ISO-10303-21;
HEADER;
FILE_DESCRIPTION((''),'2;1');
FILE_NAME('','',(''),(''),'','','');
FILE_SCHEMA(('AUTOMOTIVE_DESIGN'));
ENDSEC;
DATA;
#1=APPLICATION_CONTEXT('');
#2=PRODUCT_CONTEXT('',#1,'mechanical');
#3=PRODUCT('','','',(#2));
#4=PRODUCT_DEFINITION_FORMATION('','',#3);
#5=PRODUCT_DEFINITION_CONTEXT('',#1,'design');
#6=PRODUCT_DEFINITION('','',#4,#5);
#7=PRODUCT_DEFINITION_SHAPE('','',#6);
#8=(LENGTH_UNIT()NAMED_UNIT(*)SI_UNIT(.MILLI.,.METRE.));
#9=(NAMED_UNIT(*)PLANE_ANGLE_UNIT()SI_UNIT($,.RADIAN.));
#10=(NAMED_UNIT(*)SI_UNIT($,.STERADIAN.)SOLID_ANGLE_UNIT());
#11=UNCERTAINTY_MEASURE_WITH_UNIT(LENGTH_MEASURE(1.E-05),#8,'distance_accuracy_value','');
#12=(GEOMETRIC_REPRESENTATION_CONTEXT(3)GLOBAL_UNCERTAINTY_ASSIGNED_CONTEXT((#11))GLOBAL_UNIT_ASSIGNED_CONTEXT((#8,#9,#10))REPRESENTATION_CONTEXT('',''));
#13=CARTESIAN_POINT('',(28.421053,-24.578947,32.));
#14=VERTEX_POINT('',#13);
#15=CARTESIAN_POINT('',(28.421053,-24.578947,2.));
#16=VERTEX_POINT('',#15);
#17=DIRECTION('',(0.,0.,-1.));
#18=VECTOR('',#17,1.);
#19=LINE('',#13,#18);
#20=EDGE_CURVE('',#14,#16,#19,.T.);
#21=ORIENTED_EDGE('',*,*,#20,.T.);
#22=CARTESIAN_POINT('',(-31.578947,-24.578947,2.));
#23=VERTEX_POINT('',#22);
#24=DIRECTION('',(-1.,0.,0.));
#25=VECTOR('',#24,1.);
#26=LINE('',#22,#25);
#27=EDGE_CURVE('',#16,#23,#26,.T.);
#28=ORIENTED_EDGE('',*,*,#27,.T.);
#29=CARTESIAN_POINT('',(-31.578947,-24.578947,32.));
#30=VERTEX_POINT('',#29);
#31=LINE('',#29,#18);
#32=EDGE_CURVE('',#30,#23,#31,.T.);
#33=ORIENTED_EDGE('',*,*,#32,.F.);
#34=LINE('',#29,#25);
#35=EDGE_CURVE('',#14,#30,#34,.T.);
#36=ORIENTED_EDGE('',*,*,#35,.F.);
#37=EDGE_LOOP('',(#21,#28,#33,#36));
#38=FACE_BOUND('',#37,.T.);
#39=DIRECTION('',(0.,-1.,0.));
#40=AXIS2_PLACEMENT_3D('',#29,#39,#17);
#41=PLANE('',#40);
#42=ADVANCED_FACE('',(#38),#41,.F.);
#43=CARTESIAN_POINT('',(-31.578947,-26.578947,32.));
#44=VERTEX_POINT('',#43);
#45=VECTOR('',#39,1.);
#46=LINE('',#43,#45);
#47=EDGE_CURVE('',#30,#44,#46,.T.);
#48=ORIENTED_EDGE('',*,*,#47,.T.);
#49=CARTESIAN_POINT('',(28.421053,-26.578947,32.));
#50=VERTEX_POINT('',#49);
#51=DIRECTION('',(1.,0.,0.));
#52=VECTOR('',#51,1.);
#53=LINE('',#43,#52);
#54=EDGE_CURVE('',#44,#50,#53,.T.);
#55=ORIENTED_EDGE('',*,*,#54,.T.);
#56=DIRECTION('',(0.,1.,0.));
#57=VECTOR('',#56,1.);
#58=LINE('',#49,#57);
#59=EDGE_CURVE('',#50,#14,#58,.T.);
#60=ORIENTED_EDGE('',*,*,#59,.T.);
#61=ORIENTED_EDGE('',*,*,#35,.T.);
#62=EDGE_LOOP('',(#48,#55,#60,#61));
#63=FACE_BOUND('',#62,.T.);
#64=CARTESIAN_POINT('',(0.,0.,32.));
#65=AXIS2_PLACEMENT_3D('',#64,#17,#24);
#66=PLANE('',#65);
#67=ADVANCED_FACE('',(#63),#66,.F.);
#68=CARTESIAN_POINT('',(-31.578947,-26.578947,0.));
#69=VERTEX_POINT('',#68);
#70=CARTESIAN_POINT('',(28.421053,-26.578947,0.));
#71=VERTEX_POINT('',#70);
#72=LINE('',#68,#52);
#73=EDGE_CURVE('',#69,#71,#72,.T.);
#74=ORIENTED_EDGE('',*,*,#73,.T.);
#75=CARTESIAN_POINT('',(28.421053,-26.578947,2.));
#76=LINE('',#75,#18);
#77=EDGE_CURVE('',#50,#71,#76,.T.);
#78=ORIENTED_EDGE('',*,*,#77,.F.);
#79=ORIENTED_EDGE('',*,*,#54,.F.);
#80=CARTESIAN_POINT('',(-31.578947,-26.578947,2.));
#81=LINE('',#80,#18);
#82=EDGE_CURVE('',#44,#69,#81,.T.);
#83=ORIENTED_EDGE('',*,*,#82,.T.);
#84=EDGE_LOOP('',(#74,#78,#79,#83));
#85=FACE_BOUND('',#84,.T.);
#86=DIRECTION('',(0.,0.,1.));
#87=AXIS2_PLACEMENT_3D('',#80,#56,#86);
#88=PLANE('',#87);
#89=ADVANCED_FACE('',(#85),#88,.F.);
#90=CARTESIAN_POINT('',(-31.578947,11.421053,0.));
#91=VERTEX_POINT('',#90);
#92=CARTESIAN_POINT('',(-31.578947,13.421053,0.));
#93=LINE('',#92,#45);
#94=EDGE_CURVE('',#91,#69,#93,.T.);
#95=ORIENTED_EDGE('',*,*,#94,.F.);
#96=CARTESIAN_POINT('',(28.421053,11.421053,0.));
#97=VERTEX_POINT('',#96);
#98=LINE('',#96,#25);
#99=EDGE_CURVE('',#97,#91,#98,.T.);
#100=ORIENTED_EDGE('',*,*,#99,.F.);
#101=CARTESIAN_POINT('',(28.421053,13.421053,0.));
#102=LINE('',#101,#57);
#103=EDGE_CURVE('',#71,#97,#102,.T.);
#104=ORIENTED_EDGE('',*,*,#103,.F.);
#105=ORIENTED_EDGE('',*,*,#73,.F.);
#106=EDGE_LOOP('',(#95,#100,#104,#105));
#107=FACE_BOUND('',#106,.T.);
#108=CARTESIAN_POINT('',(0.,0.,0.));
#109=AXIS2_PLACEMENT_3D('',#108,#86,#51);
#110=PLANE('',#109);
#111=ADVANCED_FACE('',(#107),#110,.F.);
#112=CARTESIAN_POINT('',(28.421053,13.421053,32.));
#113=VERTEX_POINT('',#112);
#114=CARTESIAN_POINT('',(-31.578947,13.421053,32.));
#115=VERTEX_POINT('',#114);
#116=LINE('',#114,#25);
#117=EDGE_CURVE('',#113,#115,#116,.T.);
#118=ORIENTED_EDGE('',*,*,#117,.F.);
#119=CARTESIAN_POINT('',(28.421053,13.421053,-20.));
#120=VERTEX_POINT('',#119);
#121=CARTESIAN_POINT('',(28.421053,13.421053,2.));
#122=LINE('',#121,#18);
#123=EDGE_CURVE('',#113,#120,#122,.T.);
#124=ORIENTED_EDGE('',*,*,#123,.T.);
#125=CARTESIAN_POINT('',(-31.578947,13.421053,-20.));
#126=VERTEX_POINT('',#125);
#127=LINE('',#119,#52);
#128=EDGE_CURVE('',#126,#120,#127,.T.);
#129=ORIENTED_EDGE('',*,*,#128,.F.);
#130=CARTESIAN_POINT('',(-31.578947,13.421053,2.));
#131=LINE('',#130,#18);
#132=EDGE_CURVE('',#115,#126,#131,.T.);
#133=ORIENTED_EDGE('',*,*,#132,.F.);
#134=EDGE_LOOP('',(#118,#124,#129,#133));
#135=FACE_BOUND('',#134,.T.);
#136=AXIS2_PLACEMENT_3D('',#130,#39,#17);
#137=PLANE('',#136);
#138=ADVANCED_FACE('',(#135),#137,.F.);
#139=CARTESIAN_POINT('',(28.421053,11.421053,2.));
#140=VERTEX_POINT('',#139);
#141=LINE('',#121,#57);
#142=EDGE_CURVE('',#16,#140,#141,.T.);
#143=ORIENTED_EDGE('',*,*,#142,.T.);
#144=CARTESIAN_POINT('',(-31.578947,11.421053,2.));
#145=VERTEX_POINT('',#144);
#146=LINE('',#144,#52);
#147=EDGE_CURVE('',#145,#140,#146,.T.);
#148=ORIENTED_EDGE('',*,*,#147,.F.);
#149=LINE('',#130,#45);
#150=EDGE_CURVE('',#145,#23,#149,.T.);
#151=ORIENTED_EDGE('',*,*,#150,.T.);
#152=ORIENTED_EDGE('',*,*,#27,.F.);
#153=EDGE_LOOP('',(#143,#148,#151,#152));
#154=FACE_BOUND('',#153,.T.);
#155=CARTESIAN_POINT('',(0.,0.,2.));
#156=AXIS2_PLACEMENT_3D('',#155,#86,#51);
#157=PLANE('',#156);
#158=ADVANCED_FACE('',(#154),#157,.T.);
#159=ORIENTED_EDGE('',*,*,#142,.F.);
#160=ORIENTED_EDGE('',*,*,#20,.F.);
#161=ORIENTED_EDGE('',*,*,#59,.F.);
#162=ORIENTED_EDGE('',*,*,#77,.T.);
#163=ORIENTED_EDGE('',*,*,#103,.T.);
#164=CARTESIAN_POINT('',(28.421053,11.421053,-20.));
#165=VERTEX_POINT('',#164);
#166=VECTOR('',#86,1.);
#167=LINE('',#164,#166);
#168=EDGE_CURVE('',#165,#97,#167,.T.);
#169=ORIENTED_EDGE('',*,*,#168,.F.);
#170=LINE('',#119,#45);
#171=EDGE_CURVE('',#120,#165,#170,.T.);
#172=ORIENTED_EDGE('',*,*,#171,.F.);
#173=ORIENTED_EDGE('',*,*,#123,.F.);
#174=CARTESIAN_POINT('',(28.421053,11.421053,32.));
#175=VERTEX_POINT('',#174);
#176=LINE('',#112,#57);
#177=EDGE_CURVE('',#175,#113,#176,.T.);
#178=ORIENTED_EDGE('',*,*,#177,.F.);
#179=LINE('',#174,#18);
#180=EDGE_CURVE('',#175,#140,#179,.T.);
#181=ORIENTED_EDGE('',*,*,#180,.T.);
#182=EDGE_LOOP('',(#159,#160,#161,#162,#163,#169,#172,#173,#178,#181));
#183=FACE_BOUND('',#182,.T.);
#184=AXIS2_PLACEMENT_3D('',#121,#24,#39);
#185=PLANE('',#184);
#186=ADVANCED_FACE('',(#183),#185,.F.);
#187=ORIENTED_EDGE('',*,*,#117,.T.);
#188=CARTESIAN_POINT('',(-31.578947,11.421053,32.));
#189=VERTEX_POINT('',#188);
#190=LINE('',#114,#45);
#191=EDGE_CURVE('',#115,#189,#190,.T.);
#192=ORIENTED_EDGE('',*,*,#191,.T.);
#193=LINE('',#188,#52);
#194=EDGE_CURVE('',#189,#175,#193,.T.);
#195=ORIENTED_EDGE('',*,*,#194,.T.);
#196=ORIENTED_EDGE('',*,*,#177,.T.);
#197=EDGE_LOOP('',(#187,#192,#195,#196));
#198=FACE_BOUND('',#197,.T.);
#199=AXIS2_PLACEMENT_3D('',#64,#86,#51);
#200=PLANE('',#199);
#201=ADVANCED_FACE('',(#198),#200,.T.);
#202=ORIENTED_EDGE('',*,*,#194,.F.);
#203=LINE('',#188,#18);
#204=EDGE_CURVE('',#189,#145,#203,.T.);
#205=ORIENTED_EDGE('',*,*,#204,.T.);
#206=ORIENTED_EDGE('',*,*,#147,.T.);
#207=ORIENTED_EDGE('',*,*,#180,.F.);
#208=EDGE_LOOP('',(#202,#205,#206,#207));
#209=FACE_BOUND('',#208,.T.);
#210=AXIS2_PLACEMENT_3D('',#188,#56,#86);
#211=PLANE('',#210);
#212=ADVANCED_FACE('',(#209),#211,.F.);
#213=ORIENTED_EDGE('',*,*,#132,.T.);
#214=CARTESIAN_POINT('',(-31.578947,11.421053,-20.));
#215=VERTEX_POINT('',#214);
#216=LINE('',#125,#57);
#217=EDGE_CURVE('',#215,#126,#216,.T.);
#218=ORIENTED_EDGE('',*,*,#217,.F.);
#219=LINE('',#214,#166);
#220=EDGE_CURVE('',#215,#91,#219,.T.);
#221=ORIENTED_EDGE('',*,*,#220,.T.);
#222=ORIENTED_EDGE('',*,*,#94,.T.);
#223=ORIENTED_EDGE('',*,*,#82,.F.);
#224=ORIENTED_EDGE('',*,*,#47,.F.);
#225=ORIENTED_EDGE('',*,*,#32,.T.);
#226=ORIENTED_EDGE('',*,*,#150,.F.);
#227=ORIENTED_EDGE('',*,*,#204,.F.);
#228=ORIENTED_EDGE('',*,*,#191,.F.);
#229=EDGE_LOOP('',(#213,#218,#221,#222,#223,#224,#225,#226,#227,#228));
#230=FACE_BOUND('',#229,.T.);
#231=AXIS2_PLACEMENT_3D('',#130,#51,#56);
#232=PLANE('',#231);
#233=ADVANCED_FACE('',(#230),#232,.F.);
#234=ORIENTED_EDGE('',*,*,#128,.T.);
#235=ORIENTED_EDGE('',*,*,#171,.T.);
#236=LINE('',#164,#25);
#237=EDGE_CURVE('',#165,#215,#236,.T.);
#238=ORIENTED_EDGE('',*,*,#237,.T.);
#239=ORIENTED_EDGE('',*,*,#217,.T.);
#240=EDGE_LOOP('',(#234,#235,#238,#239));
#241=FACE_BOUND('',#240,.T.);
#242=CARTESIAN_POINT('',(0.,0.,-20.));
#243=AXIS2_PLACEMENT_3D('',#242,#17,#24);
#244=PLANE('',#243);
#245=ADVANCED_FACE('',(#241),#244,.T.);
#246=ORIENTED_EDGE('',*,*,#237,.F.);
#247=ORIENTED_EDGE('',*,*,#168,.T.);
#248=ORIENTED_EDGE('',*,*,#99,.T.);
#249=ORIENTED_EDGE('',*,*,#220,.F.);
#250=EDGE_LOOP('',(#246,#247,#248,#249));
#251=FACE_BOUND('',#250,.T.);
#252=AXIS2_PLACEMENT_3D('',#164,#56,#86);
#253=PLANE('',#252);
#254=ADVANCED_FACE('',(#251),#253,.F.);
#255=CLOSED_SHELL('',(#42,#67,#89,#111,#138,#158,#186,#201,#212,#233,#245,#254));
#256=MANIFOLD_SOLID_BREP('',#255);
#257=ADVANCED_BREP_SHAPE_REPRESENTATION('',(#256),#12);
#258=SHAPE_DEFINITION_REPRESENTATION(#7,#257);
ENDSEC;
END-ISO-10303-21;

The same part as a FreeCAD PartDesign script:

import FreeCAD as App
import Part
import Sketcher

doc = App.newDocument("Part")
body = doc.addObject("PartDesign::Body", "Body")

sketch1 = body.newObject("Sketcher::SketchObject", "Sketch")
sketch1.AttachmentSupport = (doc.getObject("XY_Plane"), [""])
sketch1.MapMode = "FlatFace"
sketch1.addGeometry(Part.LineSegment(App.Vector(-32, 13, 0), App.Vector(-32, -27, 0)), False)
sketch1.addGeometry(Part.LineSegment(App.Vector(-32, -27, 0), App.Vector(28, -27, 0)), False)
sketch1.addGeometry(Part.LineSegment(App.Vector(28, -27, 0), App.Vector(28, 13, 0)), False)
sketch1.addGeometry(Part.LineSegment(App.Vector(28, 13, 0), App.Vector(-32, 13, 0)), False)
sketch1.addConstraint(Sketcher.Constraint("Coincident", 0, 2, 1, 1))
sketch1.addConstraint(Sketcher.Constraint("Coincident", 1, 2, 2, 1))
sketch1.addConstraint(Sketcher.Constraint("Coincident", 2, 2, 3, 1))
sketch1.addConstraint(Sketcher.Constraint("Coincident", 3, 2, 0, 1))
sketch1.addConstraint(Sketcher.Constraint("Vertical", 0))
sketch1.addConstraint(Sketcher.Constraint("Horizontal", 1))
sketch1.addConstraint(Sketcher.Constraint("Vertical", 2))
sketch1.addConstraint(Sketcher.Constraint("Horizontal", 3))
sketch1.addConstraint(Sketcher.Constraint("DistanceX", 1, 1, 1, 2, 60.0))
sketch1.addConstraint(Sketcher.Constraint("DistanceY", 0, 2, 0, 1, 40.0))
sketch1.addConstraint(Sketcher.Constraint("DistanceX", 0, 2, -1, 1, 31.578947))
sketch1.addConstraint(Sketcher.Constraint("DistanceY", 0, 2, -1, 1, 26.578947))
pad1 = body.newObject("PartDesign::Pad", "Pad")
pad1.Profile = sketch1
pad1.Length = 2

sketch2 = body.newObject("Sketcher::SketchObject", "Sketch001")
sketch2.AttachmentSupport = (doc.getObject("XY_Plane"), [""])
sketch2.MapMode = "FlatFace"
sketch2.AttachmentOffset = App.Placement(App.Vector(0, 0, 2), App.Rotation())
sketch2.addGeometry(Part.LineSegment(App.Vector(-31.6, 13.4, 0), App.Vector(-31.6, 11.4, 0)), False)
sketch2.addGeometry(Part.LineSegment(App.Vector(-31.6, 11.4, 0), App.Vector(28.4, 11.4, 0)), False)
sketch2.addGeometry(Part.LineSegment(App.Vector(28.4, 11.4, 0), App.Vector(28.4, 13.4, 0)), False)
sketch2.addGeometry(Part.LineSegment(App.Vector(28.4, 13.4, 0), App.Vector(-31.6, 13.4, 0)), False)
sketch2.addGeometry(Part.LineSegment(App.Vector(-31.6, -24.6, 0), App.Vector(-31.6, -26.6, 0)), False)
sketch2.addGeometry(Part.LineSegment(App.Vector(-31.6, -26.6, 0), App.Vector(28.4, -26.6, 0)), False)
sketch2.addGeometry(Part.LineSegment(App.Vector(28.4, -26.6, 0), App.Vector(28.4, -24.6, 0)), False)
sketch2.addGeometry(Part.LineSegment(App.Vector(28.4, -24.6, 0), App.Vector(-31.6, -24.6, 0)), False)
sketch2.addConstraint(Sketcher.Constraint("Coincident", 0, 2, 1, 1))
sketch2.addConstraint(Sketcher.Constraint("Coincident", 1, 2, 2, 1))
sketch2.addConstraint(Sketcher.Constraint("Coincident", 2, 2, 3, 1))
sketch2.addConstraint(Sketcher.Constraint("Coincident", 3, 2, 0, 1))
sketch2.addConstraint(Sketcher.Constraint("Coincident", 4, 2, 5, 1))
sketch2.addConstraint(Sketcher.Constraint("Coincident", 5, 2, 6, 1))
sketch2.addConstraint(Sketcher.Constraint("Coincident", 6, 2, 7, 1))
sketch2.addConstraint(Sketcher.Constraint("Coincident", 7, 2, 4, 1))
sketch2.addConstraint(Sketcher.Constraint("Vertical", 0))
sketch2.addConstraint(Sketcher.Constraint("Horizontal", 1))
sketch2.addConstraint(Sketcher.Constraint("Vertical", 2))
sketch2.addConstraint(Sketcher.Constraint("Horizontal", 3))
sketch2.addConstraint(Sketcher.Constraint("Vertical", 4))
sketch2.addConstraint(Sketcher.Constraint("Horizontal", 5))
sketch2.addConstraint(Sketcher.Constraint("Vertical", 6))
sketch2.addConstraint(Sketcher.Constraint("Horizontal", 7))
sketch2.addConstraint(Sketcher.Constraint("Vertical", 3, 2, 4, 2))
sketch2.addConstraint(Sketcher.Constraint("Vertical", 2, 2, 5, 2))
sketch2.addConstraint(Sketcher.Constraint("Equal", 2, 4))
sketch2.addConstraint(Sketcher.Constraint("DistanceX", 1, 1, 1, 2, 60.0))
sketch2.addConstraint(Sketcher.Constraint("DistanceY", 0, 2, 0, 1, 2.0))
sketch2.addConstraint(Sketcher.Constraint("DistanceY", 4, 2, 0, 2, 38.0))
sketch2.addConstraint(Sketcher.Constraint("DistanceX", 0, 2, -1, 1, 31.578947))
sketch2.addConstraint(Sketcher.Constraint("DistanceY", -1, 1, 0, 2, 11.421053))
pad2 = body.newObject("PartDesign::Pad", "Pad001")
pad2.Profile = sketch2
pad2.Length = 30

sketch3 = body.newObject("Sketcher::SketchObject", "Sketch002")
sketch3.AttachmentSupport = (doc.getObject("XY_Plane"), [""])
sketch3.MapMode = "FlatFace"
sketch3.addGeometry(Part.LineSegment(App.Vector(28.4, 13.4, 0), App.Vector(28.4, 11.4, 0)), False)
sketch3.addGeometry(Part.LineSegment(App.Vector(28.4, 11.4, 0), App.Vector(-31.6, 11.4, 0)), False)
sketch3.addGeometry(Part.LineSegment(App.Vector(-31.6, 11.4, 0), App.Vector(-31.6, 13.4, 0)), False)
sketch3.addGeometry(Part.LineSegment(App.Vector(-31.6, 13.4, 0), App.Vector(28.4, 13.4, 0)), False)
sketch3.addConstraint(Sketcher.Constraint("Coincident", 0, 2, 1, 1))
sketch3.addConstraint(Sketcher.Constraint("Coincident", 1, 2, 2, 1))
sketch3.addConstraint(Sketcher.Constraint("Coincident", 2, 2, 3, 1))
sketch3.addConstraint(Sketcher.Constraint("Coincident", 3, 2, 0, 1))
sketch3.addConstraint(Sketcher.Constraint("Vertical", 0))
sketch3.addConstraint(Sketcher.Constraint("Horizontal", 1))
sketch3.addConstraint(Sketcher.Constraint("Vertical", 2))
sketch3.addConstraint(Sketcher.Constraint("Horizontal", 3))
sketch3.addConstraint(Sketcher.Constraint("DistanceX", 1, 2, 1, 1, 60.0))
sketch3.addConstraint(Sketcher.Constraint("DistanceY", 0, 2, 0, 1, 2.0))
sketch3.addConstraint(Sketcher.Constraint("DistanceX", -1, 1, 0, 2, 28.421053))
sketch3.addConstraint(Sketcher.Constraint("DistanceY", -1, 1, 0, 2, 11.421053))
pad3 = body.newObject("PartDesign::Pad", "Pad002")
pad3.Profile = sketch3
pad3.Length = 20
pad3.Reversed = True

doc.recompute()
